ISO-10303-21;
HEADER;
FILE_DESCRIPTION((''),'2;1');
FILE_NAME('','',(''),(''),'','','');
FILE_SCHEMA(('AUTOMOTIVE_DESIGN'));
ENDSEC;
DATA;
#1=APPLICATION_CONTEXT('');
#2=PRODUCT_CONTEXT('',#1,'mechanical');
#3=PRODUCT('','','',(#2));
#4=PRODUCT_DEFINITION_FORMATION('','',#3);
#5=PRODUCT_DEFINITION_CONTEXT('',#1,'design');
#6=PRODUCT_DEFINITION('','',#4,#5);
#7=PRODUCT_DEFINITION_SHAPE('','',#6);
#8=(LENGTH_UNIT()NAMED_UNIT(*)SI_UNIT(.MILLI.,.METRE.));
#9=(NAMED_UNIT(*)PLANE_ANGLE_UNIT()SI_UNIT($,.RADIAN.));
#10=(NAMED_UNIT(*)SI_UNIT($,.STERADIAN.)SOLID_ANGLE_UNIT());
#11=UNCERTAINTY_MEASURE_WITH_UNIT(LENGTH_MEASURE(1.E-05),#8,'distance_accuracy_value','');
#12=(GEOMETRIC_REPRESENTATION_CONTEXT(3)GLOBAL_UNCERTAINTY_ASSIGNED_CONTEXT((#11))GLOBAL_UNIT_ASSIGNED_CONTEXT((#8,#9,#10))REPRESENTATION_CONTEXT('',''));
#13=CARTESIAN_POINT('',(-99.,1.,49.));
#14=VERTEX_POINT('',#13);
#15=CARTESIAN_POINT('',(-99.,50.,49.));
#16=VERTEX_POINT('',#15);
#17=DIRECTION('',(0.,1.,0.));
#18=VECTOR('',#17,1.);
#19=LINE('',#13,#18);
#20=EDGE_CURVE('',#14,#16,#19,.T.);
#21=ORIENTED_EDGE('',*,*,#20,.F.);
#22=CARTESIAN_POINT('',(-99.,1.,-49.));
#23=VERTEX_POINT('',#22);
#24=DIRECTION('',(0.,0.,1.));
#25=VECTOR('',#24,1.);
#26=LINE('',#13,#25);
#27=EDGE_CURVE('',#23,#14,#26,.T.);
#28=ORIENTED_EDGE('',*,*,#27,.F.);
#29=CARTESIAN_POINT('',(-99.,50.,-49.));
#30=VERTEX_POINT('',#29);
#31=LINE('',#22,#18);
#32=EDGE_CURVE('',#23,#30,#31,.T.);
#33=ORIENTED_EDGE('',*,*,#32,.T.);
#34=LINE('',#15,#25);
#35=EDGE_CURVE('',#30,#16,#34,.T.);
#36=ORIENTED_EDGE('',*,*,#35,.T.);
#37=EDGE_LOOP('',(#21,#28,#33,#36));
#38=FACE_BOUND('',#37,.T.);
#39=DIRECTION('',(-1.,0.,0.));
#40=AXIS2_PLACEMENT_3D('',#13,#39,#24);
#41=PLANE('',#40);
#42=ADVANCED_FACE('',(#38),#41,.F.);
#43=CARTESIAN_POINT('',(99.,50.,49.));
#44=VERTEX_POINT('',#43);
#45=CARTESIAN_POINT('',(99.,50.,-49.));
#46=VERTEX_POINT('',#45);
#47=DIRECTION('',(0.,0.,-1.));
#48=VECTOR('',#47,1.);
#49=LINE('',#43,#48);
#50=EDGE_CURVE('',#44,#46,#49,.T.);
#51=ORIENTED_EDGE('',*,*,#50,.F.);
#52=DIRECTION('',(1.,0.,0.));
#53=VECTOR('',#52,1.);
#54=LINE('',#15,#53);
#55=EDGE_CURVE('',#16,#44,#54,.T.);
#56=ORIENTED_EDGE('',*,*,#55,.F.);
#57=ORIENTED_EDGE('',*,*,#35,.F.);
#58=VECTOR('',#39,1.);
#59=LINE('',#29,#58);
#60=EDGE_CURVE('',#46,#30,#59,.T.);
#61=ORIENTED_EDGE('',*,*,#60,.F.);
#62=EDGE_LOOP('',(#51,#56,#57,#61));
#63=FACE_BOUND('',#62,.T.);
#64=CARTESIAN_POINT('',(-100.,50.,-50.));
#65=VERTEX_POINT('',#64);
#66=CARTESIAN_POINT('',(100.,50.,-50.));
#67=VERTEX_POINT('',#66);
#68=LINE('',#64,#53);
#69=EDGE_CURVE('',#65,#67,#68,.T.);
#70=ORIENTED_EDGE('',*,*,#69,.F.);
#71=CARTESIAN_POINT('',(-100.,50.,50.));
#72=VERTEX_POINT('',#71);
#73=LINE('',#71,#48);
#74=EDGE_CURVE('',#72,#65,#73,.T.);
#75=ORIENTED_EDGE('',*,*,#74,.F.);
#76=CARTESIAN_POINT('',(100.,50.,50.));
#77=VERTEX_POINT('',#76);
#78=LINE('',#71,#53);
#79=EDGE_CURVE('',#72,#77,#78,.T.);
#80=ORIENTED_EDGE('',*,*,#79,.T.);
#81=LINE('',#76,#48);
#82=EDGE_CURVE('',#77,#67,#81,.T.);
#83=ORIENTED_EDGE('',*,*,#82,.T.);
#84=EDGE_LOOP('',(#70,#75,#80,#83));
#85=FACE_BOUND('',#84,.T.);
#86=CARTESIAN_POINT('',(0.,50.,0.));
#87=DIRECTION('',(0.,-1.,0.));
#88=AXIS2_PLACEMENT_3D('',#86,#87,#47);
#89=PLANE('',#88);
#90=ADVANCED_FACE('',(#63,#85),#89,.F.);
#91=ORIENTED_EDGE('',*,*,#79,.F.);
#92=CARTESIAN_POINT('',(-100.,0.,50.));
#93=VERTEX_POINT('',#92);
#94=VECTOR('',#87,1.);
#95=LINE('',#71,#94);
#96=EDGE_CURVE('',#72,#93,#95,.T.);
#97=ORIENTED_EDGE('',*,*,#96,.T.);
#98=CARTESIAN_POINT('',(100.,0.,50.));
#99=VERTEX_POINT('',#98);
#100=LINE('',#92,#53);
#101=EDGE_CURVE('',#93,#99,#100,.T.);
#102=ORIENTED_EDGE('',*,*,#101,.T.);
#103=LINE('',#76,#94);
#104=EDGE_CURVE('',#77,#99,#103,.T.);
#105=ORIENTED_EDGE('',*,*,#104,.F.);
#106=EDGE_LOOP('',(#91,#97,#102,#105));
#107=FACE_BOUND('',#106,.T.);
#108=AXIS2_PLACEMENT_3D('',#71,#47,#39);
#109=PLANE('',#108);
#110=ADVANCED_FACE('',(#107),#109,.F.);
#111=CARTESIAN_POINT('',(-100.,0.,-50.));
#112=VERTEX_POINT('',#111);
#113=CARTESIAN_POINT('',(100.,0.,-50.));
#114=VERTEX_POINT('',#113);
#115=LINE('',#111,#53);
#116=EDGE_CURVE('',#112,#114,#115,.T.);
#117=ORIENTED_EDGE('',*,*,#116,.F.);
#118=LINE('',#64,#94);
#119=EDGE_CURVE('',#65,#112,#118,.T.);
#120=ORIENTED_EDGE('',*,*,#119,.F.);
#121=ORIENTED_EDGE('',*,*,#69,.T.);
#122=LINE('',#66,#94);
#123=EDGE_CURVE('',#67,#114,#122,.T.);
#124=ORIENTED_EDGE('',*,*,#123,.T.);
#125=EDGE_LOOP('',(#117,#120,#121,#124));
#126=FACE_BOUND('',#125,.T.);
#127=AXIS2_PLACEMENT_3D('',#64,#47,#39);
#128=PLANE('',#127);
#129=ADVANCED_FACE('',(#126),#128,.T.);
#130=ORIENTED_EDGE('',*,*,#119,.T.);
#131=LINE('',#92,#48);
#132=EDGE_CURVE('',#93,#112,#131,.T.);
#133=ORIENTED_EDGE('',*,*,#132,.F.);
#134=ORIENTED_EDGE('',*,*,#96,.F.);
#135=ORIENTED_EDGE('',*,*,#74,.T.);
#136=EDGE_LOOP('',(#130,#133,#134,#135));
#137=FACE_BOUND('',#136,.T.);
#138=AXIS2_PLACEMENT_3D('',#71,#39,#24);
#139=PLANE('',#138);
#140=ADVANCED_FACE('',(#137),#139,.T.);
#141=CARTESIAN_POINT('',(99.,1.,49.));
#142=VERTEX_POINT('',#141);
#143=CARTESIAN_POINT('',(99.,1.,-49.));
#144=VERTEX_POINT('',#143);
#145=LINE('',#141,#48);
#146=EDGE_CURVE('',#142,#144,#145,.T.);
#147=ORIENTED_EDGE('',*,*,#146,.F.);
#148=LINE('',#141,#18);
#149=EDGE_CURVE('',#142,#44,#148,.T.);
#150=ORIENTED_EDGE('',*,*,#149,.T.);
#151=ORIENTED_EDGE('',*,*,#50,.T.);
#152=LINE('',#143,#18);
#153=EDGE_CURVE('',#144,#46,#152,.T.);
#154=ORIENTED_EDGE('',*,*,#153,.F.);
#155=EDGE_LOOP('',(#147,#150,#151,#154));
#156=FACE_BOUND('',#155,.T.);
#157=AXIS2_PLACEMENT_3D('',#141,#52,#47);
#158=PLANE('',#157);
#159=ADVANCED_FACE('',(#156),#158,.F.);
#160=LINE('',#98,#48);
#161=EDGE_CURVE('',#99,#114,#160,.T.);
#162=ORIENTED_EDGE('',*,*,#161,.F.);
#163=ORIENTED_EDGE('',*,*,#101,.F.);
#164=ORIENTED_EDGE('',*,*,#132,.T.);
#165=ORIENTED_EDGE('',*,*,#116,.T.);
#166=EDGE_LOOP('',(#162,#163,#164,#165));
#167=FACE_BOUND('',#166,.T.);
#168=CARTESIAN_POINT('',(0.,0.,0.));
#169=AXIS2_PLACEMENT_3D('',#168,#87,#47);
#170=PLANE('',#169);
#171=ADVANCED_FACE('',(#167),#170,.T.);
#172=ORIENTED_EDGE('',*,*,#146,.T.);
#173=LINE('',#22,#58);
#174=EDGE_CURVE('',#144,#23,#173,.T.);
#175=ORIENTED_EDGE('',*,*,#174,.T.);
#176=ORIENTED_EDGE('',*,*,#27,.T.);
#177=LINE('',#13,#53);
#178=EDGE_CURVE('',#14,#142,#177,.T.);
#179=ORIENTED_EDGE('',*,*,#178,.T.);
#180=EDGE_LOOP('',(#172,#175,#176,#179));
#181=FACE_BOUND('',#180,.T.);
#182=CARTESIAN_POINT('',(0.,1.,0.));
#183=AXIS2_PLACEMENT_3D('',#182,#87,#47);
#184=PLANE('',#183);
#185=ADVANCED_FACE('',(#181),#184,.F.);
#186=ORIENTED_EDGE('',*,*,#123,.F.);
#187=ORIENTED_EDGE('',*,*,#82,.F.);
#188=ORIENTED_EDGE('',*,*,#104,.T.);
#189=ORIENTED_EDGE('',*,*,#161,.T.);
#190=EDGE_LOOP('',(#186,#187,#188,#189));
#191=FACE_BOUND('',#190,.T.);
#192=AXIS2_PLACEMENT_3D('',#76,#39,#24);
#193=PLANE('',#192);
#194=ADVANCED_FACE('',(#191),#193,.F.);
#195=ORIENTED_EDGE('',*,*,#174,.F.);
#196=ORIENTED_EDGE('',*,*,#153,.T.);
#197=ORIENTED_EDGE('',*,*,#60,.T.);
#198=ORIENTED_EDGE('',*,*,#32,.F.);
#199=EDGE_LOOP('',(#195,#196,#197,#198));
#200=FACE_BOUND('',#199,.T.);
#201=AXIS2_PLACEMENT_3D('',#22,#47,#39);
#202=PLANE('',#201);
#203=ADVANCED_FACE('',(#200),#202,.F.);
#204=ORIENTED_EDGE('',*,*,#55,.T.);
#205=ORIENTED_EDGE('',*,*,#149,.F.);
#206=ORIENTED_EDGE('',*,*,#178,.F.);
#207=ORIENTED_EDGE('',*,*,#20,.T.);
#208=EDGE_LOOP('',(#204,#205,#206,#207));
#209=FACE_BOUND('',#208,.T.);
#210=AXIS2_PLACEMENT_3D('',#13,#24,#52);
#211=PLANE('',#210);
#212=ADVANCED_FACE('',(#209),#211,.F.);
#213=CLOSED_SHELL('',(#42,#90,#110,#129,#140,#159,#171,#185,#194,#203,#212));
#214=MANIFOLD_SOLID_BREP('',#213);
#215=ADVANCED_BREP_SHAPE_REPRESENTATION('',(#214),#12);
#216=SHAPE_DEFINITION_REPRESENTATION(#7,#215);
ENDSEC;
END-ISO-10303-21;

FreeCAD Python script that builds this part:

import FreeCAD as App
import Part
import Sketcher
Q = App.Units.Quantity

doc = App.newDocument("Part")
body = doc.addObject("PartDesign::Body", "Body")

sketch1 = body.newObject("Sketcher::SketchObject", "Sketch")
sketch1.AttachmentSupport = (doc.getObject("XZ_Plane"), [""])
sketch1.MapMode = "FlatFace"
sketch1.addGeometry([
    Part.LineSegment(App.Vector(-100, -50, 0), App.Vector(-100, 50, 0)),
    Part.LineSegment(App.Vector(-100, 50, 0), App.Vector(100, 50, 0)),
    Part.LineSegment(App.Vector(100, 50, 0), App.Vector(100, -50, 0)),
    Part.LineSegment(App.Vector(100, -50, 0), App.Vector(-100, -50, 0)),
], False)
sketch1.addConstraint([
    Sketcher.Constraint("Coincident", 0, 2, 1, 1),
    Sketcher.Constraint("Coincident", 1, 2, 2, 1),
    Sketcher.Constraint("Coincident", 2, 2, 3, 1),
    Sketcher.Constraint("Coincident", 3, 2, 0, 1),
    Sketcher.Constraint("Vertical", 0),
    Sketcher.Constraint("Horizontal", 1),
    Sketcher.Constraint("Vertical", 2),
    Sketcher.Constraint("Horizontal", 3),
    Sketcher.Constraint("Symmetric", 0, 2, 2, 2, -1, 1),
    Sketcher.Constraint("DistanceX", 1, 1, 1, 2, Q("200 mm")),
    Sketcher.Constraint("DistanceY", 0, 1, 0, 2, Q("100 mm")),
])
pad1 = body.newObject("PartDesign::Pad", "Pad")
pad1.Profile = sketch1
pad1.Length = 50
pad1.Reversed = True

sketch2 = body.newObject("Sketcher::SketchObject", "Sketch001")
sketch2.AttachmentSupport = (doc.getObject("XZ_Plane"), [""])
sketch2.MapMode = "FlatFace"
sketch2.AttachmentOffset = App.Placement(App.Vector(0, 0, -50), App.Rotation())
sketch2.addGeometry([
    Part.LineSegment(App.Vector(-99, -49, 0), App.Vector(-99, 49, 0)),
    Part.LineSegment(App.Vector(-99, 49, 0), App.Vector(99, 49, 0)),
    Part.LineSegment(App.Vector(99, 49, 0), App.Vector(99, -49, 0)),
    Part.LineSegment(App.Vector(99, -49, 0), App.Vector(-99, -49, 0)),
], False)
sketch2.addConstraint([
    Sketcher.Constraint("Coincident", 0, 2, 1, 1),
    Sketcher.Constraint("Coincident", 1, 2, 2, 1),
    Sketcher.Constraint("Coincident", 2, 2, 3, 1),
    Sketcher.Constraint("Coincident", 3, 2, 0, 1),
    Sketcher.Constraint("Vertical", 0),
    Sketcher.Constraint("Horizontal", 1),
    Sketcher.Constraint("Vertical", 2),
    Sketcher.Constraint("Horizontal", 3),
    Sketcher.Constraint("Symmetric", 0, 2, 2, 2, -1, 1),
    Sketcher.Constraint("DistanceX", 1, 1, 1, 2, Q("198 mm")),
    Sketcher.Constraint("DistanceY", 0, 1, 0, 2, Q("98 mm")),
])
pocket1 = body.newObject("PartDesign::Pocket", "Pocket")
pocket1.Profile = sketch2
pocket1.Length = 49
pocket1.Reversed = True

doc.recompute()
